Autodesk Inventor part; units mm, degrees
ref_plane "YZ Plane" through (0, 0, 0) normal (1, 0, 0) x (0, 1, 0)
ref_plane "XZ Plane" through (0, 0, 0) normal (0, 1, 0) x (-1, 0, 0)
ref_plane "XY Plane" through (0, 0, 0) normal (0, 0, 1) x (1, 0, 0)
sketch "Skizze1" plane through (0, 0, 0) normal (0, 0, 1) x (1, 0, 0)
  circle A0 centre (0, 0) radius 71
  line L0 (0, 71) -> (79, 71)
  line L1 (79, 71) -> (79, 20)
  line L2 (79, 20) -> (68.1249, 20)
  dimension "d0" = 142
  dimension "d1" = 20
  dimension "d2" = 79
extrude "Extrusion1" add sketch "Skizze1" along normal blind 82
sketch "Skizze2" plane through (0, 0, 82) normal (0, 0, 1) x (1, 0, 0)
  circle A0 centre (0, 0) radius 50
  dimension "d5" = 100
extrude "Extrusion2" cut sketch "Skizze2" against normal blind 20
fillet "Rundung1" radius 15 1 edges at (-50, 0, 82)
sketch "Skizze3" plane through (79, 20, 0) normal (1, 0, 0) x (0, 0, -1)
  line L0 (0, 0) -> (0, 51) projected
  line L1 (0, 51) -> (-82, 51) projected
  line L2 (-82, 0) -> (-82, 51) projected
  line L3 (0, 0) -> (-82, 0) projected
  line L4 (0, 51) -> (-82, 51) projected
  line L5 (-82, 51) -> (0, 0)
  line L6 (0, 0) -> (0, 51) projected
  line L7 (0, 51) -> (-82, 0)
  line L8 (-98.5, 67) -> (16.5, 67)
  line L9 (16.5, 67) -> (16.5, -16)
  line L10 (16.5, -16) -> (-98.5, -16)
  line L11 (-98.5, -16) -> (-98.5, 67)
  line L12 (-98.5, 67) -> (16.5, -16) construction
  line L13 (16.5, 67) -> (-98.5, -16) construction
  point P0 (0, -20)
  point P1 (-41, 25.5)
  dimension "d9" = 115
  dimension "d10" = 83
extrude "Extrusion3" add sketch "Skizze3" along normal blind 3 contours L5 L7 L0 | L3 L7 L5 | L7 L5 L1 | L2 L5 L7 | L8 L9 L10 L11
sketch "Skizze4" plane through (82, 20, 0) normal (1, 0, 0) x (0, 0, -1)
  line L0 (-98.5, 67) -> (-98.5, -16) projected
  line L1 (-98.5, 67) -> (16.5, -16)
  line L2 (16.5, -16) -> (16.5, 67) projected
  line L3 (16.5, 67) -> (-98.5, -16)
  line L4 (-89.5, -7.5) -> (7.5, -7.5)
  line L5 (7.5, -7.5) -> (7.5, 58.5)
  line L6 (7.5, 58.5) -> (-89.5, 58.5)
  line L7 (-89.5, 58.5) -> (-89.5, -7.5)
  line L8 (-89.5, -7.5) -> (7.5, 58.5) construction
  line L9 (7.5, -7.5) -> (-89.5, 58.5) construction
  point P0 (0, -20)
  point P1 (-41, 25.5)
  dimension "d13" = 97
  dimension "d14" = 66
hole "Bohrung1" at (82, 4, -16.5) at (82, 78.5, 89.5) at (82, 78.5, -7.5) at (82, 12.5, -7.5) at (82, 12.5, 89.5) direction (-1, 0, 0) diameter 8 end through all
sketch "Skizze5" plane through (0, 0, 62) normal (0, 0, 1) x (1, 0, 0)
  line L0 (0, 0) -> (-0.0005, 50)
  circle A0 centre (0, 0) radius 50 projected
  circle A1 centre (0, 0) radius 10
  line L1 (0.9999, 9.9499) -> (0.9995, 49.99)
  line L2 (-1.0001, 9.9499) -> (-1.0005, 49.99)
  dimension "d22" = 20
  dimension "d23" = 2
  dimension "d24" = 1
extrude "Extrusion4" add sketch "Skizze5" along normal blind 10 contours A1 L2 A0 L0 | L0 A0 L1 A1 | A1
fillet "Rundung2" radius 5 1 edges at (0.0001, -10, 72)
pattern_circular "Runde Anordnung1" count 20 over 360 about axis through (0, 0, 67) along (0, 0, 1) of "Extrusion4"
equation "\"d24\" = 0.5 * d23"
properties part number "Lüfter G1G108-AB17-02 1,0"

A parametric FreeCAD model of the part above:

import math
import FreeCAD as App
import Part
import Sketcher
from FreeCAD import Vector


def edges_at(feature, points):
    """Names of the edges that pass closest to the given points."""
    edges = feature.Shape.Edges
    near = lambda p: min(range(len(edges)), key=lambda i: edges[i].distToShape(Part.Vertex(*p))[0])
    return sorted({f"Edge{near(p) + 1}" for p in points})


def add_polygon(sketch, points):
    """Adds a closed chain of lines whose ends are joined by coincident constraints."""
    first, n = sketch.GeometryCount, len(points)
    for a, b in zip(points, points[1:] + points[:1]):
        sketch.addGeometry(Part.LineSegment(App.Vector(*a, 0), App.Vector(*b, 0)), False)
    for i in range(n):
        sketch.addConstraint(Sketcher.Constraint("Coincident", first + i, 2, first + (i + 1) % n, 1))

doc = App.newDocument("Part")
body = doc.addObject("PartDesign::Body", "Body")

# Sketch on XY plane
sketch1 = doc.addObject("Sketcher::SketchObject", "Sketch")
body.addObject(sketch1)
sketch1.AttachmentSupport = (doc.XY_Plane, [""])
sketch1.MapMode = "FlatFace"
sketch1.addGeometry([
    Part.ArcOfCircle(Part.Circle(Vector(0, 0, 0), Vector(0, 0, 1), 71), math.radians(90), math.radians(376.3611)),
    Part.LineSegment(Vector(68.1249, 20, 0), Vector(79, 20, 0)),
    Part.LineSegment(Vector(79, 20, 0), Vector(79, 71, 0)),
    Part.LineSegment(Vector(79, 71, 0), Vector(0, 71, 0)),
], False)
sketch1.addConstraint([
    Sketcher.Constraint("Coincident", 0, 2, 1, 1),
    Sketcher.Constraint("Coincident", 1, 2, 2, 1),
    Sketcher.Constraint("Coincident", 2, 2, 3, 1),
    Sketcher.Constraint("Tangent", 3, 2, 0, 1),
    Sketcher.Constraint("Horizontal", 1),
    Sketcher.Constraint("Vertical", 2),
    Sketcher.Constraint("Horizontal", 3),
    Sketcher.Constraint("Coincident", 0, 3, -1, 1),
    Sketcher.Constraint("Radius", 0, 71.0),
    Sketcher.Constraint("DistanceX", 3, 2, 3, 1, 79.0),
    Sketcher.Constraint("DistanceY", -1, 1, 0, 2, 20.0),
])
pad1 = doc.addObject("PartDesign::Pad", "Pad")
body.addObject(pad1)
pad1.Profile = sketch1
pad1.Length = 82

# Sketch on XY plane
sketch2 = doc.addObject("Sketcher::SketchObject", "Sketch001")
body.addObject(sketch2)
sketch2.AttachmentSupport = (doc.XY_Plane, [""])
sketch2.MapMode = "FlatFace"
sketch2.AttachmentOffset = App.Placement(Vector(0, 0, 82), App.Rotation())
sketch2.addGeometry(Part.Circle(Vector(0, 0, 0), Vector(0, 0, 1), 50), False)
sketch2.addConstraint([
    Sketcher.Constraint("Coincident", 0, 3, -1, 1),
    Sketcher.Constraint("Diameter", 0, 100.0),
])
pocket1 = doc.addObject("PartDesign::Pocket", "Pocket")
body.addObject(pocket1)
pocket1.Profile = sketch2
pocket1.Length = 20
doc.recompute()

fillet = doc.addObject("PartDesign::Fillet", "Fillet")
body.addObject(fillet)
fillet.Base = (pocket1, edges_at(pocket1, [(-50, 0, 82)]))
fillet.Radius = 15

# Sketch on YZ plane
sketch3 = doc.addObject("Sketcher::SketchObject", "Sketch002")
body.addObject(sketch3)
sketch3.AttachmentSupport = (doc.YZ_Plane, [""])
sketch3.MapMode = "FlatFace"
sketch3.AttachmentOffset = App.Placement(Vector(0, 0, 79), App.Rotation())
add_polygon(sketch3, [(87, -16.5), (87, 98.5), (4, 98.5), (4, -16.5)])  # lines 0-3
sketch3.addConstraint([
    Sketcher.Constraint("Vertical", 0),
    Sketcher.Constraint("Horizontal", 1),
    Sketcher.Constraint("Vertical", 2),
    Sketcher.Constraint("Horizontal", 3),
    Sketcher.Constraint("DistanceX", 1, 2, 1, 1, 83.0),
    Sketcher.Constraint("DistanceY", 0, 1, 0, 2, 115.0),
    Sketcher.Constraint("DistanceX", -1, 1, 0, 2, 87.0),
    Sketcher.Constraint("DistanceY", -1, 1, 0, 2, 98.5),
])
pad2 = doc.addObject("PartDesign::Pad", "Pad001")
body.addObject(pad2)
pad2.Profile = sketch3
pad2.Length = 3

# Sketch on YZ plane
sketch4 = doc.addObject("Sketcher::SketchObject", "Sketch003")
body.addObject(sketch4)
sketch4.AttachmentSupport = (doc.YZ_Plane, [""])
sketch4.MapMode = "FlatFace"
sketch4.AttachmentOffset = App.Placement(Vector(0, 0, 82), App.Rotation())
sketch4.addGeometry([
    Part.Circle(Vector(4, -16.5, 0), Vector(0, 0, 1), 4),  # 0
    Part.Circle(Vector(78.5, 89.5, 0), Vector(0, 0, 1), 4),  # 1
    Part.Circle(Vector(78.5, -7.5, 0), Vector(0, 0, 1), 4),  # 2
    Part.Circle(Vector(12.5, -7.5, 0), Vector(0, 0, 1), 4),  # 3
    Part.Circle(Vector(12.5, 89.5, 0), Vector(0, 0, 1), 4),  # 4
], False)
sketch4.addConstraint([
    Sketcher.Constraint("Equal", 0, 1),
    Sketcher.Constraint("Equal", 1, 2),
    Sketcher.Constraint("Equal", 2, 3),
    Sketcher.Constraint("Equal", 3, 4),
    Sketcher.Constraint("Horizontal", 2, 3, 3, 3),
    Sketcher.Constraint("Horizontal", 1, 3, 4, 3),
    Sketcher.Constraint("Vertical", 1, 3, 2, 3),
    Sketcher.Constraint("Vertical", 3, 3, 4, 3),
    Sketcher.Constraint("Diameter", 0, 8.0),
    Sketcher.Constraint("DistanceX", -1, 1, 0, 3, 4.0),
    Sketcher.Constraint("DistanceY", 0, 3, 1, 3, 106.0),
    Sketcher.Constraint("DistanceY", 0, 3, 2, 3, 9.0),
    Sketcher.Constraint("DistanceX", 3, 3, 2, 3, 66.0),
    Sketcher.Constraint("DistanceY", 0, 3, -1, 1, 16.5),
    Sketcher.Constraint("DistanceX", -1, 1, 1, 3, 78.5),
])
doc.recompute()
hole = doc.addObject("PartDesign::Hole", "Hole")
body.addObject(hole)
hole.Profile = sketch4
hole.ThreadType = "None"
hole.Diameter = 8
hole.DepthType = "ThroughAll"

# Sketch on XY plane
sketch5 = doc.addObject("Sketcher::SketchObject", "Sketch004")
body.addObject(sketch5)
sketch5.AttachmentSupport = (doc.XY_Plane, [""])
sketch5.MapMode = "FlatFace"
sketch5.AttachmentOffset = App.Placement(Vector(0, 0, 62), App.Rotation())
sketch5.addGeometry([
    Part.LineSegment(Vector(-1.0005, 49.99, 0), Vector(-1.0001, 9.9499, 0)),
    Part.ArcOfCircle(Part.Circle(Vector(0, 0, 0), Vector(0, 0, 1), 10), math.radians(95.739726), math.radians(444.261414)),
    Part.LineSegment(Vector(0.9999, 9.9499, 0), Vector(0.9995, 49.99, 0)),
    Part.ArcOfCircle(Part.Circle(Vector(0, 0, 0), Vector(0, 0, 1), 50), math.radians(88.854581), math.radians(91.146565)),
], False)
sketch5.addConstraint([
    Sketcher.Constraint("Coincident", 0, 2, 1, 1),
    Sketcher.Constraint("Coincident", 1, 2, 2, 1),
    Sketcher.Constraint("Coincident", 2, 2, 3, 1),
    Sketcher.Constraint("Coincident", 3, 2, 0, 1),
    Sketcher.Constraint("Coincident", 1, 3, -1, 1),
    Sketcher.Constraint("Coincident", 3, 3, -1, 1),
    Sketcher.Constraint("Parallel", 0, 2),
    Sketcher.Constraint("Horizontal", 0, 2, 1, 2),
    Sketcher.Constraint("Horizontal", 2, 2, 3, 2),
    Sketcher.Constraint("Radius", 1, 10.0),
    Sketcher.Constraint("DistanceX", 0, 2, -1, 1, 1.0),
    Sketcher.Constraint("Radius", 3, 50.0),
])
pad3 = doc.addObject("PartDesign::Pad", "Pad002")
body.addObject(pad3)
pad3.Profile = sketch5
pad3.Length = 10
doc.recompute()

fillet2 = doc.addObject("PartDesign::Fillet", "Fillet001")
body.addObject(fillet2)
fillet2.Base = (pad3, edges_at(pad3, [(0, -10, 72)]))
fillet2.Radius = 5
doc.recompute()

polarpattern = doc.addObject("PartDesign::PolarPattern", "PolarPattern")
body.addObject(polarpattern)
polarpattern.Originals = [pad3]
polarpattern.Axis = (doc.Z_Axis, [""])
polarpattern.Angle = 360
polarpattern.Occurrences = 20
body.Tip = polarpattern

doc.recompute()
